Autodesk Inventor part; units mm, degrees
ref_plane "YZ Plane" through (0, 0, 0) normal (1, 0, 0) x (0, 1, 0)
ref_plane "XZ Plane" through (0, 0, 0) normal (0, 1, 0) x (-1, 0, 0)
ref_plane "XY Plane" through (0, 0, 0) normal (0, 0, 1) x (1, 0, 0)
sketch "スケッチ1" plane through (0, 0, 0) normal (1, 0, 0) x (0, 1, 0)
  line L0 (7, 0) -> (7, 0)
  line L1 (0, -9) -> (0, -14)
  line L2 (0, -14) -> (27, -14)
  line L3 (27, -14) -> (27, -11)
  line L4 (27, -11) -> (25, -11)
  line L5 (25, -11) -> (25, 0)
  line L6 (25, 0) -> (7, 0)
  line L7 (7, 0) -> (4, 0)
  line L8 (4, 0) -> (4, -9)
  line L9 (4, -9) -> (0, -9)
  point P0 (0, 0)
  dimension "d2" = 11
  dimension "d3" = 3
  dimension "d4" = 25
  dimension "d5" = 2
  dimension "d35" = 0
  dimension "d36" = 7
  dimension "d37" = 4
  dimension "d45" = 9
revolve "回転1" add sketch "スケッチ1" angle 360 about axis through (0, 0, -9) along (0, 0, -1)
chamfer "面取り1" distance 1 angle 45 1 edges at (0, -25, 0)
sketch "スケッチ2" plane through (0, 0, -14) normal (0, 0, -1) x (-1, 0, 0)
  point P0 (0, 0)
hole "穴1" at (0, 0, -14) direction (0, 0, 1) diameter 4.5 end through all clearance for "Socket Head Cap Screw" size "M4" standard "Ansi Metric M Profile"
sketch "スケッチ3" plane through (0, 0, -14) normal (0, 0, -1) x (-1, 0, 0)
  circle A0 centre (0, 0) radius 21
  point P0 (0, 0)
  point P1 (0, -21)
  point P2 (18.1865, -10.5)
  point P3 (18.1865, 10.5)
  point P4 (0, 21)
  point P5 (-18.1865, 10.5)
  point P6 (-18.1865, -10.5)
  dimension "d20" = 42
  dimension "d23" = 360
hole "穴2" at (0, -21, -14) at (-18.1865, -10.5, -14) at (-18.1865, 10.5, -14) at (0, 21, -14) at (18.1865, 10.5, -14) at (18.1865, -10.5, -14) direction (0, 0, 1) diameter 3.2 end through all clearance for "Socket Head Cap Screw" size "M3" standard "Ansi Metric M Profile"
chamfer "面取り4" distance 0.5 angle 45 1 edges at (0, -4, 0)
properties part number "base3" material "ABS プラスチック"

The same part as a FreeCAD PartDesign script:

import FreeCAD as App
import Part
import Sketcher
from FreeCAD import Vector
Q = App.Units.Quantity


def edges_at(feature, points):
    """Names of the edges that pass closest to the given points."""
    edges = feature.Shape.Edges
    near = lambda p: min(range(len(edges)), key=lambda i: edges[i].distToShape(Part.Vertex(*p))[0])
    return sorted({f"Edge{near(p) + 1}" for p in points})


def add_polygon(sketch, points):
    """Adds a closed chain of lines whose ends are joined by coincident constraints."""
    first, n = sketch.GeometryCount, len(points)
    for a, b in zip(points, points[1:] + points[:1]):
        sketch.addGeometry(Part.LineSegment(App.Vector(*a, 0), App.Vector(*b, 0)), False)
    for i in range(n):
        sketch.addConstraint(Sketcher.Constraint("Coincident", first + i, 2, first + (i + 1) % n, 1))

doc = App.newDocument("Part")
body = doc.addObject("PartDesign::Body", "Body")

sketch1 = body.newObject("Sketcher::SketchObject", "Sketch")
sketch1.AttachmentSupport = (doc.getObject("YZ_Plane"), [""])
sketch1.MapMode = "FlatFace"
add_polygon(sketch1, [(4, -9), (0, -9), (0, -14), (27, -14), (27, -11), (25, -11), (25, 0), (4, 0)])
sketch1.addConstraint([
    Sketcher.Constraint("Horizontal", 0),
    Sketcher.Constraint("Vertical", 1),
    Sketcher.Constraint("Horizontal", 2),
    Sketcher.Constraint("Vertical", 3),
    Sketcher.Constraint("Horizontal", 4),
    Sketcher.Constraint("Vertical", 5),
    Sketcher.Constraint("Horizontal", 6),
    Sketcher.Constraint("Vertical", 7),
    Sketcher.Constraint("PointOnObject", 0, 2, -2),
    Sketcher.Constraint("PointOnObject", 5, 2, -1),
    Sketcher.Constraint("DistanceX", 0, 2, 0, 1, Q("4 mm")),
    Sketcher.Constraint("DistanceX", 4, 2, 4, 1, Q("2 mm")),
    Sketcher.Constraint("DistanceY", 3, 1, 3, 2, Q("3 mm")),
    Sketcher.Constraint("DistanceY", 5, 1, 5, 2, Q("11 mm")),
    Sketcher.Constraint("DistanceY", 7, 2, 7, 1, Q("9 mm")),
    Sketcher.Constraint("DistanceX", -1, 1, 4, 2, Q("25 mm")),
])
revolution = body.newObject("PartDesign::Revolution", "Revolution")
revolution.Profile = sketch1
revolution.ReferenceAxis = (sketch1, ["V_Axis"])
revolution.Angle = 360
doc.recompute()

chamfer = body.newObject("PartDesign::Chamfer", "Chamfer")
chamfer.Base = (revolution, edges_at(revolution, [(0, -25, 0)]))
chamfer.Size = 1

sketch2 = body.newObject("Sketcher::SketchObject", "Sketch001")
sketch2.AttachmentSupport = (doc.getObject("XY_Plane"), [""])
sketch2.MapMode = "FlatFace"
sketch2.AttachmentOffset = App.Placement(Vector(0, 0, -14), App.Rotation())
sketch2.addGeometry(Part.Circle(Vector(0, 0, 0), Vector(0, 0, 1), 2.2), False)
sketch2.addConstraint([
    Sketcher.Constraint("Coincident", 0, 3, -1, 1),
    Sketcher.Constraint("Diameter", 0, Q("4.5 mm")),
])
doc.recompute()
hole = body.newObject("PartDesign::Hole", "Hole")
hole.Profile = sketch2
hole.ThreadType = "None"
hole.Diameter = 4.5
hole.DepthType = "ThroughAll"
hole.Reversed = True

sketch3 = body.newObject("Sketcher::SketchObject", "Sketch002")
sketch3.AttachmentSupport = (doc.getObject("XY_Plane"), [""])
sketch3.MapMode = "FlatFace"
sketch3.AttachmentOffset = App.Placement(Vector(0, 0, -14), App.Rotation())
sketch3.addGeometry([
    Part.Circle(Vector(0, -21, 0), Vector(0, 0, 1), 1.6),
    Part.Circle(Vector(-18.2, -10.5, 0), Vector(0, 0, 1), 1.6),
    Part.Circle(Vector(-18.2, 10.5, 0), Vector(0, 0, 1), 1.6),
    Part.Circle(Vector(0, 21, 0), Vector(0, 0, 1), 1.6),
    Part.Circle(Vector(18.2, 10.5, 0), Vector(0, 0, 1), 1.6),
    Part.Circle(Vector(18.2, -10.5, 0), Vector(0, 0, 1), 1.6),
], False)
sketch3.addConstraint([
    Sketcher.Constraint("Equal", 0, 1),
    Sketcher.Constraint("Equal", 1, 2),
    Sketcher.Constraint("Equal", 2, 3),
    Sketcher.Constraint("Equal", 3, 4),
    Sketcher.Constraint("Equal", 4, 5),
    Sketcher.Constraint("Symmetric", 0, 3, 3, 3, -1, 1),
    Sketcher.Constraint("Symmetric", 1, 3, 4, 3, -1, 1),
    Sketcher.Constraint("Symmetric", 2, 3, 5, 3, -1, 1),
    Sketcher.Constraint("Symmetric", 2, 3, 4, 3, -2),
    Sketcher.Constraint("PointOnObject", 0, 3, -2),
    Sketcher.Constraint("Diameter", 0, Q("3.2 mm")),
    Sketcher.Constraint("DistanceY", 0, 3, -1, 1, Q("21 mm")),
    Sketcher.Constraint("DistanceY", 1, 3, 2, 3, Q("21 mm")),
    Sketcher.Constraint("DistanceX", 2, 3, 4, 3, Q("36.373 mm")),
])
doc.recompute()
hole2 = body.newObject("PartDesign::Hole", "Hole001")
hole2.Profile = sketch3
hole2.ThreadType = "None"
hole2.Diameter = 3.2
hole2.DepthType = "ThroughAll"
hole2.Reversed = True
doc.recompute()

chamfer2 = body.newObject("PartDesign::Chamfer", "Chamfer001")
chamfer2.Base = (hole2, edges_at(hole2, [(0, -4, 0)]))
chamfer2.Size = 0.5

doc.recompute()
